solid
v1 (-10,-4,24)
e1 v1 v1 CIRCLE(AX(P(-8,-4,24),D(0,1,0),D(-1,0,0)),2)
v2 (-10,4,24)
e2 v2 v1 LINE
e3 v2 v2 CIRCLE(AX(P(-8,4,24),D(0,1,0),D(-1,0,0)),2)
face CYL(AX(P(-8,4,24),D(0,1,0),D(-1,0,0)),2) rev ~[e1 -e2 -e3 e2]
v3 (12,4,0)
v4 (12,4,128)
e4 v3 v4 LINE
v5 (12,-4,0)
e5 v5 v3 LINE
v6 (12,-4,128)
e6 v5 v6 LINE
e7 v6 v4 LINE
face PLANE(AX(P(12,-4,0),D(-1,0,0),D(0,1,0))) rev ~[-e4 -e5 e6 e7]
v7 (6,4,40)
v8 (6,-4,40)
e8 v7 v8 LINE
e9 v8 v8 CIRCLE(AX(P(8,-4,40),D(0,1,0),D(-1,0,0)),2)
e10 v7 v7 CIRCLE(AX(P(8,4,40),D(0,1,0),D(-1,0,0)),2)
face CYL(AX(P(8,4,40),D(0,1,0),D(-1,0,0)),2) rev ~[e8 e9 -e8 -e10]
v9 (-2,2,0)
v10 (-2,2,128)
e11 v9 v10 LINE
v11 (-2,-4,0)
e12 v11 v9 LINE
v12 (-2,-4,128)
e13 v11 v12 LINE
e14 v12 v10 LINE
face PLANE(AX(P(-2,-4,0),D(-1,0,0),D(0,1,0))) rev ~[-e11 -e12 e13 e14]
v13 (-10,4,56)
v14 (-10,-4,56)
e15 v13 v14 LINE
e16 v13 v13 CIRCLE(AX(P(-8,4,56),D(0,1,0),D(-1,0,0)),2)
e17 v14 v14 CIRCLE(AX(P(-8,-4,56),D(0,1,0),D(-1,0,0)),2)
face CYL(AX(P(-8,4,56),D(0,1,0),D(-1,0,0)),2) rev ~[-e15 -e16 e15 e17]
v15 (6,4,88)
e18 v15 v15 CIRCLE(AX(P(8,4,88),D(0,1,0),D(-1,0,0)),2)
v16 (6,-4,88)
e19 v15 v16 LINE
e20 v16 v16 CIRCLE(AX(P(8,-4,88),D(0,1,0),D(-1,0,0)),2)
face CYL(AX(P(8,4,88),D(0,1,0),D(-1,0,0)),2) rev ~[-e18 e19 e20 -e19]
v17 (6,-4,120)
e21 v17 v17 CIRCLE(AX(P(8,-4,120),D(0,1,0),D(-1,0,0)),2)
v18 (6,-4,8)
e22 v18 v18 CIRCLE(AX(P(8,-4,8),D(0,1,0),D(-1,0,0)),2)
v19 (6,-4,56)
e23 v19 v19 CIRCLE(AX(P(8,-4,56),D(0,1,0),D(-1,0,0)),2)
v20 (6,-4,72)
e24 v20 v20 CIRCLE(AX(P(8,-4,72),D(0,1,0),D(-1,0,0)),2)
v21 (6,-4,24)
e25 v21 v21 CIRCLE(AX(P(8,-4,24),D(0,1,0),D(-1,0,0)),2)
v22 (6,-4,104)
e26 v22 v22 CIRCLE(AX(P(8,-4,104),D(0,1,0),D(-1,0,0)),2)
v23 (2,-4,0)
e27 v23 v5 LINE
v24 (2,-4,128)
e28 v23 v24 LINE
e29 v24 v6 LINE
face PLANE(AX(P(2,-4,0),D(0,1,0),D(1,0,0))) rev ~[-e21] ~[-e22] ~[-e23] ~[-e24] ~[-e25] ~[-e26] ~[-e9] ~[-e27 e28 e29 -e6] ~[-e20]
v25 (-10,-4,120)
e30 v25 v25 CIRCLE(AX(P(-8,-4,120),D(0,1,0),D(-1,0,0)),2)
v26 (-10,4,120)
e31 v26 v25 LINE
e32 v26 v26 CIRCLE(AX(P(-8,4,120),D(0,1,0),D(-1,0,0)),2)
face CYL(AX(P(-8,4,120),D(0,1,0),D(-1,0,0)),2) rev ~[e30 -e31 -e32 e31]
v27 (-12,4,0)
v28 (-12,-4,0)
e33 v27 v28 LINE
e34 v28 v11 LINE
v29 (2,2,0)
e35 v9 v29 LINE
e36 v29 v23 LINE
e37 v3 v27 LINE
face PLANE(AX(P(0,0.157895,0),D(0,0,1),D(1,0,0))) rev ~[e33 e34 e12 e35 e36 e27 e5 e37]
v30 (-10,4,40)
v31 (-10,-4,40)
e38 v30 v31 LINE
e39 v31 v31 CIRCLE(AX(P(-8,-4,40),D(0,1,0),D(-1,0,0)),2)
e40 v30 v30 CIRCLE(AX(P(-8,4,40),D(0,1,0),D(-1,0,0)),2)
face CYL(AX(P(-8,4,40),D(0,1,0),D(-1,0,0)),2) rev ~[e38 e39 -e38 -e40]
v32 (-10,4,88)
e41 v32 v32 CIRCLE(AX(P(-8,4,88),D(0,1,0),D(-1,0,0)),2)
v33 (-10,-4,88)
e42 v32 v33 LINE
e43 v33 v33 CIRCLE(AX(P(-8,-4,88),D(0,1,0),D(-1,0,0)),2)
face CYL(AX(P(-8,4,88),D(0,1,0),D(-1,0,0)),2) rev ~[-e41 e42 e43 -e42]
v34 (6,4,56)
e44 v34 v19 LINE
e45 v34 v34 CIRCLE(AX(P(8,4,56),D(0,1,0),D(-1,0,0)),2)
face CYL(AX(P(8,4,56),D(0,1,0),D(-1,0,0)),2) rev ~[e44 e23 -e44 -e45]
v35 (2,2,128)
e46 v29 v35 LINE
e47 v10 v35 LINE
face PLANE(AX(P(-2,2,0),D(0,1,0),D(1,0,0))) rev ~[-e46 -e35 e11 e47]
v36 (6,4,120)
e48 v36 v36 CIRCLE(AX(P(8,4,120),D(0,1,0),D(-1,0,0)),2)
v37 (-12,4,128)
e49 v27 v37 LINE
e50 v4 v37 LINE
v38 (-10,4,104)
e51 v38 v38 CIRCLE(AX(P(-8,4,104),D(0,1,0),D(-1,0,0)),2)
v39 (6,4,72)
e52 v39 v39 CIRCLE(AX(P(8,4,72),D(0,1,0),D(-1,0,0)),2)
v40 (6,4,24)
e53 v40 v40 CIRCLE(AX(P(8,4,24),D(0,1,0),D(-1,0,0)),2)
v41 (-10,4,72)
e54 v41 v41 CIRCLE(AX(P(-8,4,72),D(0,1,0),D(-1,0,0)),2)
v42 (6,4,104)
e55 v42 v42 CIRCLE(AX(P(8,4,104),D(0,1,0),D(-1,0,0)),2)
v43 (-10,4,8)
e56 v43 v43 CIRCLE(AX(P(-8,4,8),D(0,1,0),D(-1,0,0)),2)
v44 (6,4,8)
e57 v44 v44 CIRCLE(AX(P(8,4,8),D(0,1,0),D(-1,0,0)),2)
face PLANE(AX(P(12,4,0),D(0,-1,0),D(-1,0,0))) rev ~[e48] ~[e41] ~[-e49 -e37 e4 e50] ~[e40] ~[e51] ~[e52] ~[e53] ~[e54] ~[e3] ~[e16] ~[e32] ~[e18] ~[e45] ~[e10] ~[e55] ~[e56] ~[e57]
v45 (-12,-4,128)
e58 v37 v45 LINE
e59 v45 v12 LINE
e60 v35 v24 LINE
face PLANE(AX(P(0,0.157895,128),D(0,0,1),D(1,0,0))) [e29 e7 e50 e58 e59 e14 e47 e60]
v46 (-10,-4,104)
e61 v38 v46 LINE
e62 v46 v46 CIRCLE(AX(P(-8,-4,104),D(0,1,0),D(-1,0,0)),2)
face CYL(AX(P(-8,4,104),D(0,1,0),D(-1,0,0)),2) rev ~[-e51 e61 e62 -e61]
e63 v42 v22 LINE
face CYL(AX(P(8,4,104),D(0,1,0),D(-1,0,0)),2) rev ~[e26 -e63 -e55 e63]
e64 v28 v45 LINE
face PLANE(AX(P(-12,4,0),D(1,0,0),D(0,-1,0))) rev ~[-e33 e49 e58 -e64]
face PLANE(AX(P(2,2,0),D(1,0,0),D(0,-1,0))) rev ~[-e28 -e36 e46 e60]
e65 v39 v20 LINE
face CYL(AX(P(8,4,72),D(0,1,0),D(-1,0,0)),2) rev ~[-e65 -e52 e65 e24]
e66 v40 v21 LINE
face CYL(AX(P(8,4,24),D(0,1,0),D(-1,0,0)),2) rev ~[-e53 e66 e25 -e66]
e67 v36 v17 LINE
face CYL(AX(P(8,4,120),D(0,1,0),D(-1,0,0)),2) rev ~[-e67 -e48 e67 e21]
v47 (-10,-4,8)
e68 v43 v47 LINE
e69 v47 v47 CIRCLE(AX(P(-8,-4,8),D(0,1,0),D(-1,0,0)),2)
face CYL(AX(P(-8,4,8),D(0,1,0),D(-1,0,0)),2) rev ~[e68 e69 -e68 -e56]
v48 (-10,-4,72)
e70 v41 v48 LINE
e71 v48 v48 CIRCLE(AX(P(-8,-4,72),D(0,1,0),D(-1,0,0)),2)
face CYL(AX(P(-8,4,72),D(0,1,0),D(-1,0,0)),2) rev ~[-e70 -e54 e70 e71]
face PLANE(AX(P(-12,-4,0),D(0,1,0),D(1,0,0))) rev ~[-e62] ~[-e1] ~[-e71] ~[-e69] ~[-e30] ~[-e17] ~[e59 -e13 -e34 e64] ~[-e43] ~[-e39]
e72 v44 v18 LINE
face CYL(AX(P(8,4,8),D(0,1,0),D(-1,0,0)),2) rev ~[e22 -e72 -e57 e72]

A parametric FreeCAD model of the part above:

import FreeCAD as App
import Part
import Sketcher

V = App.Vector
Q = App.Units.Quantity


def add_polygon(sketch, points):
    """Adds a closed chain of lines whose ends are joined by coincident constraints."""
    first, n = sketch.GeometryCount, len(points)
    for a, b in zip(points, points[1:] + points[:1]):
        sketch.addGeometry(Part.LineSegment(App.Vector(*a, 0), App.Vector(*b, 0)), False)
    for i in range(n):
        sketch.addConstraint(Sketcher.Constraint("Coincident", first + i, 2, first + (i + 1) % n, 1))

doc = App.newDocument("Part")
body = doc.addObject("PartDesign::Body", "Body")

# Sketch on XY plane
sketch1 = body.newObject("Sketcher::SketchObject", "Sketch")
sketch1.AttachmentSupport = (doc.getObject("XY_Plane"), [""])
sketch1.MapMode = "FlatFace"
add_polygon(sketch1, [(12, -4), (12, 4), (-12, 4), (-12, -4), (-2, -4), (-2, 2), (2, 2), (2, -4)])  # lines 0-7
sketch1.addConstraint(Sketcher.Constraint("Vertical", 0))
sketch1.addConstraint(Sketcher.Constraint("Horizontal", 1))
sketch1.addConstraint(Sketcher.Constraint("Vertical", 2))
sketch1.addConstraint(Sketcher.Constraint("Horizontal", 3))
sketch1.addConstraint(Sketcher.Constraint("Vertical", 4))
sketch1.addConstraint(Sketcher.Constraint("Horizontal", 5))
sketch1.addConstraint(Sketcher.Constraint("Vertical", 6))
sketch1.addConstraint(Sketcher.Constraint("Horizontal", 7))
sketch1.addConstraint(Sketcher.Constraint("Symmetric", 0, 2, 2, 2, -1, 1))
sketch1.addConstraint(Sketcher.Constraint("Symmetric", 3, 2, 6, 2, -2))
sketch1.addConstraint(Sketcher.Constraint("DistanceX", 1, 2, 1, 1, Q("24 mm")))
sketch1.addConstraint(Sketcher.Constraint("DistanceX", 3, 1, 3, 2, Q("10 mm")))
sketch1.addConstraint(Sketcher.Constraint("DistanceY", 0, 1, 0, 2, Q("8 mm")))
sketch1.addConstraint(Sketcher.Constraint("DistanceY", 4, 1, 4, 2, Q("6 mm")))
pad1 = body.newObject("PartDesign::Pad", "Pad")
pad1.Profile = sketch1
pad1.Length = 128

# Sketch on XZ plane
sketch2 = body.newObject("Sketcher::SketchObject", "Sketch001")
sketch2.AttachmentSupport = (doc.getObject("XZ_Plane"), [""])
sketch2.MapMode = "FlatFace"
sketch2.AttachmentOffset = App.Placement(V(0, 0, -4), App.Rotation())
sketch2.addGeometry(Part.Circle(V(8, 8, 0), V(0, 0, 1), 2), False)
sketch2.addGeometry(Part.Circle(V(8, 24, 0), V(0, 0, 1), 2), False)
sketch2.addGeometry(Part.Circle(V(8, 40, 0), V(0, 0, 1), 2), False)
sketch2.addGeometry(Part.Circle(V(8, 56, 0), V(0, 0, 1), 2), False)
sketch2.addGeometry(Part.Circle(V(8, 72, 0), V(0, 0, 1), 2), False)
sketch2.addGeometry(Part.Circle(V(-8, 8, 0), V(0, 0, 1), 2), False)
sketch2.addGeometry(Part.Circle(V(-8, 24, 0), V(0, 0, 1), 2), False)
sketch2.addGeometry(Part.Circle(V(-8, 40, 0), V(0, 0, 1), 2), False)
sketch2.addGeometry(Part.Circle(V(-8, 56, 0), V(0, 0, 1), 2), False)
sketch2.addGeometry(Part.Circle(V(-8, 72, 0), V(0, 0, 1), 2), False)
sketch2.addGeometry(Part.Circle(V(8, 88, 0), V(0, 0, 1), 2), False)
sketch2.addGeometry(Part.Circle(V(8, 104, 0), V(0, 0, 1), 2), False)
sketch2.addGeometry(Part.Circle(V(8, 120, 0), V(0, 0, 1), 2), False)
sketch2.addGeometry(Part.Circle(V(-8, 88, 0), V(0, 0, 1), 2), False)
sketch2.addGeometry(Part.Circle(V(-8, 104, 0), V(0, 0, 1), 2), False)
sketch2.addGeometry(Part.Circle(V(-8, 120, 0), V(0, 0, 1), 2), False)
sketch2.addConstraint(Sketcher.Constraint("Equal", 0, 1))
sketch2.addConstraint(Sketcher.Constraint("Equal", 1, 2))
sketch2.addConstraint(Sketcher.Constraint("Equal", 2, 3))
sketch2.addConstraint(Sketcher.Constraint("Equal", 3, 4))
sketch2.addConstraint(Sketcher.Constraint("Equal", 4, 5))
sketch2.addConstraint(Sketcher.Constraint("Equal", 5, 6))
sketch2.addConstraint(Sketcher.Constraint("Equal", 6, 7))
sketch2.addConstraint(Sketcher.Constraint("Equal", 7, 8))
sketch2.addConstraint(Sketcher.Constraint("Equal", 8, 9))
sketch2.addConstraint(Sketcher.Constraint("Equal", 9, 10))
sketch2.addConstraint(Sketcher.Constraint("Equal", 10, 11))
sketch2.addConstraint(Sketcher.Constraint("Equal", 11, 12))
sketch2.addConstraint(Sketcher.Constraint("Equal", 12, 13))
sketch2.addConstraint(Sketcher.Constraint("Equal", 13, 14))
sketch2.addConstraint(Sketcher.Constraint("Equal", 14, 15))
sketch2.addConstraint(Sketcher.Constraint("Symmetric", 0, 3, 5, 3, -2))
sketch2.addConstraint(Sketcher.Constraint("Symmetric", 1, 3, 6, 3, -2))
sketch2.addConstraint(Sketcher.Constraint("Symmetric", 2, 3, 7, 3, -2))
sketch2.addConstraint(Sketcher.Constraint("Symmetric", 3, 3, 8, 3, -2))
sketch2.addConstraint(Sketcher.Constraint("Symmetric", 4, 3, 9, 3, -2))
sketch2.addConstraint(Sketcher.Constraint("Symmetric", 10, 3, 13, 3, -2))
sketch2.addConstraint(Sketcher.Constraint("Symmetric", 11, 3, 14, 3, -2))
sketch2.addConstraint(Sketcher.Constraint("Symmetric", 12, 3, 15, 3, -2))
sketch2.addConstraint(Sketcher.Constraint("Vertical", 0, 3, 1, 3))
sketch2.addConstraint(Sketcher.Constraint("Vertical", 1, 3, 2, 3))
sketch2.addConstraint(Sketcher.Constraint("Vertical", 2, 3, 3, 3))
sketch2.addConstraint(Sketcher.Constraint("Vertical", 3, 3, 4, 3))
sketch2.addConstraint(Sketcher.Constraint("Vertical", 4, 3, 10, 3))
sketch2.addConstraint(Sketcher.Constraint("Vertical", 10, 3, 11, 3))
sketch2.addConstraint(Sketcher.Constraint("Vertical", 11, 3, 12, 3))
sketch2.addConstraint(Sketcher.Constraint("Diameter", 0, Q("4 mm")))
sketch2.addConstraint(Sketcher.Constraint("DistanceX", -1, 1, 0, 3, Q("8 mm")))
sketch2.addConstraint(Sketcher.Constraint("DistanceY", -1, 1, 0, 3, Q("8 mm")))
sketch2.addConstraint(Sketcher.Constraint("DistanceY", -1, 1, 1, 3, Q("24 mm")))
sketch2.addConstraint(Sketcher.Constraint("DistanceY", -1, 1, 2, 3, Q("40 mm")))
sketch2.addConstraint(Sketcher.Constraint("DistanceY", -1, 1, 3, 3, Q("56 mm")))
sketch2.addConstraint(Sketcher.Constraint("DistanceY", -1, 1, 4, 3, Q("72 mm")))
sketch2.addConstraint(Sketcher.Constraint("DistanceY", -1, 1, 10, 3, Q("88 mm")))
sketch2.addConstraint(Sketcher.Constraint("DistanceY", -1, 1, 11, 3, Q("104 mm")))
sketch2.addConstraint(Sketcher.Constraint("DistanceY", -1, 1, 12, 3, Q("120 mm")))
pocket1 = body.newObject("PartDesign::Pocket", "Pocket")
pocket1.Profile = sketch2
pocket1.Length = 25
pocket1.Reversed = True

doc.recompute()
